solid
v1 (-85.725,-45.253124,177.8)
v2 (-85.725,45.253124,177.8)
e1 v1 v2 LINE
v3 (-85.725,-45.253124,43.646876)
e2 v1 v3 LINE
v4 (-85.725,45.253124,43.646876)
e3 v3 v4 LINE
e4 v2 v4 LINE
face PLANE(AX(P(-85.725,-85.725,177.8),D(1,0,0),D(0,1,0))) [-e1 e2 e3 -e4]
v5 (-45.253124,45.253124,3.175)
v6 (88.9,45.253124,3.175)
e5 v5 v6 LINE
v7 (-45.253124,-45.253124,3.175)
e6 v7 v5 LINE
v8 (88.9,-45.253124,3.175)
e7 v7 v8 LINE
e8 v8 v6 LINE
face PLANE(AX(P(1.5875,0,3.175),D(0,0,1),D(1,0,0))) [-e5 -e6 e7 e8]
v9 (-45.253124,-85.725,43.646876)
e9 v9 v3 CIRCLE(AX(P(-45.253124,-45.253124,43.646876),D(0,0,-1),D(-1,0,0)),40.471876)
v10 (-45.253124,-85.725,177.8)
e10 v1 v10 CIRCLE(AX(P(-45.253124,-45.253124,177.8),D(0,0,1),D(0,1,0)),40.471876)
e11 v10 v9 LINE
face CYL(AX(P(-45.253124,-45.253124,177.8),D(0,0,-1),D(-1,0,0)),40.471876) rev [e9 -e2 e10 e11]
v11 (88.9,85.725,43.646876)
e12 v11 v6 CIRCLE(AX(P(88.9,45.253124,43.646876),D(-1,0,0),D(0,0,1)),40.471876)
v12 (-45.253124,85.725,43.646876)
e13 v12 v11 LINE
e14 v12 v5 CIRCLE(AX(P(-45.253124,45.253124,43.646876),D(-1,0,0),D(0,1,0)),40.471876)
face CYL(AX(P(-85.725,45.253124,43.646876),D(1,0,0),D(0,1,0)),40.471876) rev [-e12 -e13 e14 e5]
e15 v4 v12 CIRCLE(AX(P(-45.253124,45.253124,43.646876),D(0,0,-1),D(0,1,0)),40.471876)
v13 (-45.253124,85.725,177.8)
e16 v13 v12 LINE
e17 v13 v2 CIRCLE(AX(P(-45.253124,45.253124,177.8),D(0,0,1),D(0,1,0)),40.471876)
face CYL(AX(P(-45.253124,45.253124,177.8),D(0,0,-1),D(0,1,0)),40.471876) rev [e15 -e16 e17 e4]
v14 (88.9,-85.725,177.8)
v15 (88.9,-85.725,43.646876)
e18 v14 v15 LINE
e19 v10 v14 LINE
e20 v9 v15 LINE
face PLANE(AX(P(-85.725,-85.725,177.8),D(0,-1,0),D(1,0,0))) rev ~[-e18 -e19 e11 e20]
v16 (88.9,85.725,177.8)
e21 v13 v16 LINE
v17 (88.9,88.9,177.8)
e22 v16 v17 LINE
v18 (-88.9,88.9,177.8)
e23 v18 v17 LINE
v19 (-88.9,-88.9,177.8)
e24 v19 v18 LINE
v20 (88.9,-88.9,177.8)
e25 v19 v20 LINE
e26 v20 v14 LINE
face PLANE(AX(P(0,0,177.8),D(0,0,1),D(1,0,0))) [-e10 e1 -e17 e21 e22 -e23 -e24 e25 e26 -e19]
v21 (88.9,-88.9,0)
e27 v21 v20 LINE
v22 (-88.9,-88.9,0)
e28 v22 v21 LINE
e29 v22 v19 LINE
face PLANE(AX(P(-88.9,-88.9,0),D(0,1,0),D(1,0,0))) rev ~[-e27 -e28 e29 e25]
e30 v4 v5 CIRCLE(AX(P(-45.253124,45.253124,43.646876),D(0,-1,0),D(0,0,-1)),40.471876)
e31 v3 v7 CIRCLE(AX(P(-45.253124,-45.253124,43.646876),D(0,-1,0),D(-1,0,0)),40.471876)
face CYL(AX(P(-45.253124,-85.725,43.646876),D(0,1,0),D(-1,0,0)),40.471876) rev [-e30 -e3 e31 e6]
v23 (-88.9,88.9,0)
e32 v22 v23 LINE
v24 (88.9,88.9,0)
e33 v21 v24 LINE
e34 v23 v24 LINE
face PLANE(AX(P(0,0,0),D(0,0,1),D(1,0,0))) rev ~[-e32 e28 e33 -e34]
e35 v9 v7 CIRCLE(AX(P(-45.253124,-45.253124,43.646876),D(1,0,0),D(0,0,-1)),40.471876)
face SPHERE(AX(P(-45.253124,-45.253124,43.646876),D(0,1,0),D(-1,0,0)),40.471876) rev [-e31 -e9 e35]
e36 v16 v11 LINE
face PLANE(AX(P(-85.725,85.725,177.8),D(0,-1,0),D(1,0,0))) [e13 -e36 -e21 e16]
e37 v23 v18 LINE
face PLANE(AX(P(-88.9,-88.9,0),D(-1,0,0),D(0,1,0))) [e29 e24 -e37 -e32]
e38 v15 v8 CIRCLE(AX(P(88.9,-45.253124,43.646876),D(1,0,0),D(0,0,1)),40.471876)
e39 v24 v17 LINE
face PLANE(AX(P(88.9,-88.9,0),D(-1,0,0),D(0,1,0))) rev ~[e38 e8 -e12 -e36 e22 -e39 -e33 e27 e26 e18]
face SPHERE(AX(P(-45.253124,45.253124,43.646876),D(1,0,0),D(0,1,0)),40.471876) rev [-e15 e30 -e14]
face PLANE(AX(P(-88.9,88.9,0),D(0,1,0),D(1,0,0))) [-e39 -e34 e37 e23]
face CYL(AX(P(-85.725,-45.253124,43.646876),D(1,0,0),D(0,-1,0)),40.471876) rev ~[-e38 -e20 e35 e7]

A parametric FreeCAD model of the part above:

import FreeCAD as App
import Part
import Sketcher
from FreeCAD import Vector
Q = App.Units.Quantity


def edges_at(feature, points):
    """Names of the edges that pass closest to the given points."""
    edges = feature.Shape.Edges
    near = lambda p: min(range(len(edges)), key=lambda i: edges[i].distToShape(Part.Vertex(*p))[0])
    return sorted({f"Edge{near(p) + 1}" for p in points})

doc = App.newDocument("Part")
body = doc.addObject("PartDesign::Body", "Body")

# Sketch on XY plane
sketch1 = body.newObject("Sketcher::SketchObject", "Sketch")
sketch1.AttachmentSupport = (doc.getObject("XY_Plane"), [""])
sketch1.MapMode = "FlatFace"
sketch1.addGeometry([
    Part.LineSegment(Vector(-88.9, 88.9, 0), Vector(-88.9, -88.9, 0)),
    Part.LineSegment(Vector(-88.9, -88.9, 0), Vector(88.9, -88.9, 0)),
    Part.LineSegment(Vector(88.9, -88.9, 0), Vector(88.9, 88.9, 0)),
    Part.LineSegment(Vector(88.9, 88.9, 0), Vector(-88.9, 88.9, 0)),
], False)
sketch1.addConstraint([
    Sketcher.Constraint("Coincident", 0, 2, 1, 1),
    Sketcher.Constraint("Coincident", 1, 2, 2, 1),
    Sketcher.Constraint("Coincident", 2, 2, 3, 1),
    Sketcher.Constraint("Coincident", 3, 2, 0, 1),
    Sketcher.Constraint("Vertical", 0),
    Sketcher.Constraint("Horizontal", 1),
    Sketcher.Constraint("Vertical", 2),
    Sketcher.Constraint("Horizontal", 3),
    Sketcher.Constraint("Symmetric", 0, 2, 2, 2, -1, 1),
    Sketcher.Constraint("Equal", 3, 0),
    Sketcher.Constraint("DistanceX", 1, 1, 1, 2, Q("7 in")),
])
pad1 = body.newObject("PartDesign::Pad", "Pad")
pad1.Profile = sketch1
pad1.Length = Q("7 in")

# Sketch on XY plane
sketch2 = body.newObject("Sketcher::SketchObject", "Sketch001")
sketch2.AttachmentSupport = (doc.getObject("XY_Plane"), [""])
sketch2.MapMode = "FlatFace"
sketch2.AttachmentOffset = App.Placement(Vector(0, 0, 7 * 25.4), App.Rotation())
sketch2.addGeometry([
    Part.LineSegment(Vector(-85.725, 85.725, 0), Vector(-85.725, -85.725, 0)),
    Part.LineSegment(Vector(-85.725, -85.725, 0), Vector(88.9, -85.725, 0)),
    Part.LineSegment(Vector(88.9, -85.725, 0), Vector(88.9, 85.725, 0)),
    Part.LineSegment(Vector(88.9, 85.725, 0), Vector(-85.725, 85.725, 0)),
], False)
sketch2.addConstraint([
    Sketcher.Constraint("Coincident", 0, 2, 1, 1),
    Sketcher.Constraint("Coincident", 1, 2, 2, 1),
    Sketcher.Constraint("Coincident", 2, 2, 3, 1),
    Sketcher.Constraint("Coincident", 3, 2, 0, 1),
    Sketcher.Constraint("Vertical", 0),
    Sketcher.Constraint("Horizontal", 1),
    Sketcher.Constraint("Vertical", 2),
    Sketcher.Constraint("Horizontal", 3),
    Sketcher.Constraint("DistanceY", 0, 2, 0, 1, Q("6.75 in")),
    Sketcher.Constraint("DistanceX", -1, 1, 1, 2, Q("3.5 in")),
    Sketcher.Constraint("DistanceX", 1, 1, 1, 2, Q("6.875 in")),
    Sketcher.Constraint("DistanceY", 0, 2, -1, 1, Q("3.375 in")),
])
pocket1 = body.newObject("PartDesign::Pocket", "Pocket")
pocket1.Profile = sketch2
pocket1.Length = Q("6.875 in")
doc.recompute()

fillet = body.newObject("PartDesign::Fillet", "Fillet")
fillet.Base = (pocket1, edges_at(pocket1, [
    (1.587, 85.725, 3.175),
    (-85.725, 85.725, 90.487),
    (-85.725, 0, 3.175),
    (-85.725, -85.725, 90.487),
    (1.587, -85.725, 3.175),
]))
fillet.Radius = 40.471876

doc.recompute()
